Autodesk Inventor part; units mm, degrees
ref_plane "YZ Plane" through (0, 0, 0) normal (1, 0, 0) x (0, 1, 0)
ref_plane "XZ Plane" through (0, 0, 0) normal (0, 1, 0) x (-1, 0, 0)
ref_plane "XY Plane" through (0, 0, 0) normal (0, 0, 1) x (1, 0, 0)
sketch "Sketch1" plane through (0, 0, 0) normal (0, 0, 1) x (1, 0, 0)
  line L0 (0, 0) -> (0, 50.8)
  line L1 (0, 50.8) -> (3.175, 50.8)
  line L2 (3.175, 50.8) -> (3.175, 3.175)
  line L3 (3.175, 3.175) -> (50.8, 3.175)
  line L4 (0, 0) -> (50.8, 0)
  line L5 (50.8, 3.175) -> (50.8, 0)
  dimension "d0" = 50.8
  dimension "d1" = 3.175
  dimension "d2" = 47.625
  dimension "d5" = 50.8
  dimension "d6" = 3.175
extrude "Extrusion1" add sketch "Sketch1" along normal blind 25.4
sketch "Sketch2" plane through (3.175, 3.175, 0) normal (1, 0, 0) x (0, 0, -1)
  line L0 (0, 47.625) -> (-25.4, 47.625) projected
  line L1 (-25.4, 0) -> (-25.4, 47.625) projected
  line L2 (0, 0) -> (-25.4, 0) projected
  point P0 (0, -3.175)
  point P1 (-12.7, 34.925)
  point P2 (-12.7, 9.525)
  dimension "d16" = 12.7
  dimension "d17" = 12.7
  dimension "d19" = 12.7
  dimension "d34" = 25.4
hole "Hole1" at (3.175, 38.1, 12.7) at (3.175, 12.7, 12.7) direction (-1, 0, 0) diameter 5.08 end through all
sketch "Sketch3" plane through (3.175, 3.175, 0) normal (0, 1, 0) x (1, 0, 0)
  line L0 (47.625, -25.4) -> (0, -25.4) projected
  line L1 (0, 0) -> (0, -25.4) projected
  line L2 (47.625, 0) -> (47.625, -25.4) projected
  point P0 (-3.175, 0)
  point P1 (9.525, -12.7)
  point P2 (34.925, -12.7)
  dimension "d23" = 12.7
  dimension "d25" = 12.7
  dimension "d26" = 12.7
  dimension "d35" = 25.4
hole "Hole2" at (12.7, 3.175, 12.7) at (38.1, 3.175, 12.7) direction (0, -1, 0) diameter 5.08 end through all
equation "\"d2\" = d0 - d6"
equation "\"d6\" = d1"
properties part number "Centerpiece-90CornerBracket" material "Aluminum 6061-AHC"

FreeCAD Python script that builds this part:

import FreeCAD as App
import Part
import Sketcher
Q = App.Units.Quantity


def add_polygon(sketch, points):
    """Adds a closed chain of lines whose ends are joined by coincident constraints."""
    first, n = sketch.GeometryCount, len(points)
    for a, b in zip(points, points[1:] + points[:1]):
        sketch.addGeometry(Part.LineSegment(App.Vector(*a, 0), App.Vector(*b, 0)), False)
    for i in range(n):
        sketch.addConstraint(Sketcher.Constraint("Coincident", first + i, 2, first + (i + 1) % n, 1))

doc = App.newDocument("Part")
params = doc.addObject("Spreadsheet::Sheet", "Params")
for row, (alias, value) in enumerate([
    ("sketch1_width", "2 in"),
    ("sketch1_width2", "1.875 in"),
    ("pad1_length", "1 in"),
    ("sketch2_diameter", "0.2 in"),
    ("hole_diameter", "0.2 in"),
    ("sketch3_diameter", "0.2 in"),
    ("hole2_diameter", "0.2 in"),
], start=1):
    params.set(f"A{row}", alias)
    params.set(f"B{row}", "=" + value)
    params.setAlias(f"B{row}", alias)

body = doc.addObject("PartDesign::Body", "Body")

# Sketch on XY plane
sketch1 = body.newObject("Sketcher::SketchObject", "Sketch")
sketch1.AttachmentSupport = (doc.getObject("XY_Plane"), [""])
sketch1.MapMode = "FlatFace"
add_polygon(sketch1, [(0, 50.8), (0, 0), (50.8, 0), (50.8, 3.2), (3.2, 3.2), (3.2, 50.8)])  # lines 0-5
sketch1.addConstraint([
    Sketcher.Constraint("Vertical", 0),
    Sketcher.Constraint("Horizontal", 1),
    Sketcher.Constraint("Vertical", 2),
    Sketcher.Constraint("Horizontal", 3),
    Sketcher.Constraint("Vertical", 4),
    Sketcher.Constraint("Horizontal", 5),
    Sketcher.Constraint("Coincident", 0, 2, -1, 1),
    Sketcher.Constraint("Equal", 1, 0),
    Sketcher.Constraint("Equal", 5, 2),
    Sketcher.Constraint("DistanceX", 1, 1, 1, 2, Q("2 in")),
    Sketcher.Constraint("DistanceX", 3, 2, 3, 1, Q("1.875 in")),
])
sketch1.setExpression("Constraints[15]", "Params.sketch1_width")
sketch1.setExpression("Constraints[16]", "Params.sketch1_width2")
pad1 = body.newObject("PartDesign::Pad", "Pad")
pad1.Profile = sketch1
pad1.setExpression("Length", "Params.pad1_length")

# Sketch on YZ plane
sketch2 = body.newObject("Sketcher::SketchObject", "Sketch001")
sketch2.AttachmentSupport = (doc.getObject("YZ_Plane"), [""])
sketch2.MapMode = "FlatFace"
sketch2.AttachmentOffset = App.Placement(App.Vector(0, 0, 0.125 * 25.4), App.Rotation())
sketch2.addGeometry([
    Part.Circle(App.Vector(38.1, 12.7, 0), App.Vector(0, 0, 1), 2.5),
    Part.Circle(App.Vector(12.7, 12.7, 0), App.Vector(0, 0, 1), 2.5),
], False)
sketch2.addConstraint([
    Sketcher.Constraint("Equal", 0, 1),
    Sketcher.Constraint("Horizontal", 0, 3, 1, 3),
    Sketcher.Constraint("Diameter", 0, Q("0.2 in")),
    Sketcher.Constraint("DistanceX", 1, 3, 0, 3, Q("1 in")),
    Sketcher.Constraint("DistanceX", -1, 1, 0, 3, Q("1.5 in")),
    Sketcher.Constraint("DistanceY", -1, 1, 0, 3, Q("0.5 in")),
])
sketch2.setExpression("Constraints[2]", "Params.sketch2_diameter")
doc.recompute()
hole = body.newObject("PartDesign::Hole", "Hole")
hole.Profile = sketch2
hole.ThreadType = "None"
hole.setExpression("Diameter", "Params.hole_diameter")
hole.DepthType = "ThroughAll"

# Sketch on XZ plane
sketch3 = body.newObject("Sketcher::SketchObject", "Sketch002")
sketch3.AttachmentSupport = (doc.getObject("XZ_Plane"), [""])
sketch3.MapMode = "FlatFace"
sketch3.AttachmentOffset = App.Placement(App.Vector(0, 0, -0.125 * 25.4), App.Rotation())
sketch3.addGeometry([
    Part.Circle(App.Vector(12.7, 12.7, 0), App.Vector(0, 0, 1), 2.5),
    Part.Circle(App.Vector(38.1, 12.7, 0), App.Vector(0, 0, 1), 2.5),
], False)
sketch3.addConstraint([
    Sketcher.Constraint("Equal", 0, 1),
    Sketcher.Constraint("Horizontal", 0, 3, 1, 3),
    Sketcher.Constraint("Diameter", 0, Q("0.2 in")),
    Sketcher.Constraint("DistanceX", 0, 3, 1, 3, Q("1 in")),
    Sketcher.Constraint("DistanceX", -1, 1, 0, 3, Q("0.5 in")),
    Sketcher.Constraint("DistanceY", -1, 1, 0, 3, Q("0.5 in")),
])
sketch3.setExpression("Constraints[2]", "Params.sketch3_diameter")
doc.recompute()
hole2 = body.newObject("PartDesign::Hole", "Hole001")
hole2.Profile = sketch3
hole2.ThreadType = "None"
hole2.setExpression("Diameter", "Params.hole2_diameter")
hole2.DepthType = "ThroughAll"
hole2.Reversed = True

doc.recompute()
